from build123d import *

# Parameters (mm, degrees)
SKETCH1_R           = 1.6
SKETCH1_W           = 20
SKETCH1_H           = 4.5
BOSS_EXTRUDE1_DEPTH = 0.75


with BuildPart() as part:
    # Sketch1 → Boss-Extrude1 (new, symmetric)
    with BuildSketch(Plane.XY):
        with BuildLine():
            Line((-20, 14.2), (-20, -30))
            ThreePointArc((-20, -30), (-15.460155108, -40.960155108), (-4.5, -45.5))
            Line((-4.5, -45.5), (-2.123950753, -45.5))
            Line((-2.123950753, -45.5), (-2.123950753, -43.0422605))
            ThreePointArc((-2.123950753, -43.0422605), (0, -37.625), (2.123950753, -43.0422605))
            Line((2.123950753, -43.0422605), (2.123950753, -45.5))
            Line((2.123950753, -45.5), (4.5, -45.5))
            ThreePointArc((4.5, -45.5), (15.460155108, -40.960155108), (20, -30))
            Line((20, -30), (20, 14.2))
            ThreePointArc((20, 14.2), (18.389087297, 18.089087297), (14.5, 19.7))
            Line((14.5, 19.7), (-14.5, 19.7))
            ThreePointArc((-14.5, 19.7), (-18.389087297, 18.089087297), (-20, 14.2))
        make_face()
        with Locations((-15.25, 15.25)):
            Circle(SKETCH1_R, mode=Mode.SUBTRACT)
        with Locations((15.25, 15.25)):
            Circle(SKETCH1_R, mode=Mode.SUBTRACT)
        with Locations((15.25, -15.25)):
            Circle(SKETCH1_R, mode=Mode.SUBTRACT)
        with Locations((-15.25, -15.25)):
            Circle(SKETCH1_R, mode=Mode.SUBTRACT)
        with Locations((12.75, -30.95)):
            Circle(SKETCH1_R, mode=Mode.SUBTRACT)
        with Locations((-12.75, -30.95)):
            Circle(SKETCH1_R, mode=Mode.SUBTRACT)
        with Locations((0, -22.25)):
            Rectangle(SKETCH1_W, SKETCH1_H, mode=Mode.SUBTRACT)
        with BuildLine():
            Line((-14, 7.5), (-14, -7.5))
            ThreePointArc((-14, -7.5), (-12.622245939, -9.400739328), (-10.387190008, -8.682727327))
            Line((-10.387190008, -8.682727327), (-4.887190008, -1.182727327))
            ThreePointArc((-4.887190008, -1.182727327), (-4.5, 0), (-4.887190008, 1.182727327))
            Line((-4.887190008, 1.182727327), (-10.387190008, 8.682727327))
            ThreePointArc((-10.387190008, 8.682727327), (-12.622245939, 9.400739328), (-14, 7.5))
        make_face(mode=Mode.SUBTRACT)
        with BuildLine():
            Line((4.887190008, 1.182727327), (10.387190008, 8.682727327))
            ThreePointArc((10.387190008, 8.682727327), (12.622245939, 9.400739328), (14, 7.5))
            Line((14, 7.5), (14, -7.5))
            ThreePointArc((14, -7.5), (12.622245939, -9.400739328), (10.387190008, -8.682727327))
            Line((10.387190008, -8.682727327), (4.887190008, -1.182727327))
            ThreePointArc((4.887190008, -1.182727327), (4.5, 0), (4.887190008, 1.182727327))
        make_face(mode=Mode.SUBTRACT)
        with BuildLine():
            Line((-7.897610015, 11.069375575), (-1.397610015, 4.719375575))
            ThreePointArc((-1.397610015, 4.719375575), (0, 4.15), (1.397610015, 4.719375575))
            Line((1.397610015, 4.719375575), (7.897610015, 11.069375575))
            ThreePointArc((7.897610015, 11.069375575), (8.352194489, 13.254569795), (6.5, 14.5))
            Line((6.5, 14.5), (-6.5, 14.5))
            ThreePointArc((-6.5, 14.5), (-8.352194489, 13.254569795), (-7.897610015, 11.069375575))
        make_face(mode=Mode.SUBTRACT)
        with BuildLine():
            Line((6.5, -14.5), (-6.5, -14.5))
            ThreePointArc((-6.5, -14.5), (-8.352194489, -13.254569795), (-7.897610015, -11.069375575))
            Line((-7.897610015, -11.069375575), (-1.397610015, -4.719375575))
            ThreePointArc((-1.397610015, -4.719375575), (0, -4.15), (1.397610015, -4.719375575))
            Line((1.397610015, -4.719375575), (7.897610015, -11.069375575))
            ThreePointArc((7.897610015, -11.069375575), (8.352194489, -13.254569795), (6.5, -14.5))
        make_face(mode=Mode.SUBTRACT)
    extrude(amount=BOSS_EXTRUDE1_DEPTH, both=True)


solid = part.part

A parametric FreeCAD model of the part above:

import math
import FreeCAD as App
import Part
import Sketcher
Q = App.Units.Quantity

doc = App.newDocument("Part")
body = doc.addObject("PartDesign::Body", "Body")

# Sketch on XY plane
sketch1 = body.newObject("Sketcher::SketchObject", "Sketch")
sketch1.AttachmentSupport = (doc.getObject("XY_Plane"), [""])
sketch1.MapMode = "FlatFace"
sketch1.addGeometry([
    Part.LineSegment(App.Vector(-20, 14.2, 0), App.Vector(-20, -30, 0)),  # 0
    Part.ArcOfCircle(Part.Circle(App.Vector(-4.5, -30, 0), App.Vector(0, 0, 1), 15.5), math.radians(-180), math.radians(-90)),  # 1
    Part.LineSegment(App.Vector(-4.5, -45.5, 0), App.Vector(-2.123951, -45.5, 0)),  # 2
    Part.LineSegment(App.Vector(-2.123951, -45.5, 0), App.Vector(-2.123951, -43.04226, 0)),  # 3
    Part.ArcOfCircle(Part.Circle(App.Vector(0, -40.75, 0), App.Vector(0, 0, 1), 3.125), math.radians(-47.182589), math.radians(227.182589)),  # 4
    Part.LineSegment(App.Vector(2.123951, -43.04226, 0), App.Vector(2.123951, -45.5, 0)),  # 5
    Part.LineSegment(App.Vector(2.123951, -45.5, 0), App.Vector(4.5, -45.5, 0)),  # 6
    Part.ArcOfCircle(Part.Circle(App.Vector(4.5, -30, 0), App.Vector(0, 0, 1), 15.5), math.radians(-90), math.radians(0)),  # 7
    Part.LineSegment(App.Vector(20, -30, 0), App.Vector(20, 14.2, 0)),  # 8
    Part.ArcOfCircle(Part.Circle(App.Vector(14.5, 14.2, 0), App.Vector(0, 0, 1), 5.5), math.radians(0), math.radians(90)),  # 9
    Part.LineSegment(App.Vector(14.5, 19.7, 0), App.Vector(-14.5, 19.7, 0)),  # 10
    Part.ArcOfCircle(Part.Circle(App.Vector(-14.5, 14.2, 0), App.Vector(0, 0, 1), 5.5), math.radians(90), math.radians(180)),  # 11
    Part.Circle(App.Vector(-12.75, -30.95, 0), App.Vector(0, 0, 1), 1.6),  # 12
    Part.Circle(App.Vector(-15.25, -15.25, 0), App.Vector(0, 0, 1), 1.6),  # 13
    Part.LineSegment(App.Vector(10, -24.5, 0), App.Vector(-10, -24.5, 0)),  # 14
    Part.LineSegment(App.Vector(-10, -24.5, 0), App.Vector(-10, -20, 0)),  # 15
    Part.LineSegment(App.Vector(-10, -20, 0), App.Vector(10, -20, 0)),  # 16
    Part.LineSegment(App.Vector(10, -20, 0), App.Vector(10, -24.5, 0)),  # 17
    Part.Circle(App.Vector(12.75, -30.95, 0), App.Vector(0, 0, 1), 1.6),  # 18
    Part.ArcOfCircle(Part.Circle(App.Vector(6.5, -12.5, 0), App.Vector(0, 0, 1), 2), math.radians(-90), math.radians(45.668792)),  # 19
    Part.LineSegment(App.Vector(6.5, -14.5, 0), App.Vector(-6.5, -14.5, 0)),  # 20
    Part.ArcOfCircle(Part.Circle(App.Vector(-6.5, -12.5, 0), App.Vector(0, 0, 1), 2), math.radians(134.331208), math.radians(270)),  # 21
    Part.LineSegment(App.Vector(-7.89761, -11.069376, 0), App.Vector(-1.39761, -4.719376, 0)),  # 22
    Part.ArcOfCircle(Part.Circle(App.Vector(0, -6.15, 0), App.Vector(0, 0, 1), 2), math.radians(45.668792), math.radians(134.331208)),  # 23
    Part.LineSegment(App.Vector(1.39761, -4.719376, 0), App.Vector(7.89761, -11.069376, 0)),  # 24
    Part.Circle(App.Vector(15.25, -15.25, 0), App.Vector(0, 0, 1), 1.6),  # 25
    Part.LineSegment(App.Vector(-14, -7.5, 0), App.Vector(-14, 7.5, 0)),  # 26
    Part.ArcOfCircle(Part.Circle(App.Vector(-12, 7.5, 0), App.Vector(0, 0, 1), 2), math.radians(36.253838), math.radians(180)),  # 27
    Part.LineSegment(App.Vector(-10.38719, 8.682727, 0), App.Vector(-4.88719, 1.182727, 0)),  # 28
    Part.ArcOfCircle(Part.Circle(App.Vector(-6.5, 0, 0), App.Vector(0, 0, 1), 2), math.radians(-36.253838), math.radians(36.253838)),  # 29
    Part.LineSegment(App.Vector(-4.88719, -1.182727, 0), App.Vector(-10.38719, -8.682727, 0)),  # 30
    Part.ArcOfCircle(Part.Circle(App.Vector(-12, -7.5, 0), App.Vector(0, 0, 1), 2), math.radians(180), math.radians(323.746162)),  # 31
    Part.Circle(App.Vector(-15.25, 15.25, 0), App.Vector(0, 0, 1), 1.6),  # 32
    Part.ArcOfCircle(Part.Circle(App.Vector(6.5, 0, 0), App.Vector(0, 0, 1), 2), math.radians(143.746162), math.radians(216.253838)),  # 33
    Part.LineSegment(App.Vector(4.88719, 1.182727, 0), App.Vector(10.38719, 8.682727, 0)),  # 34
    Part.ArcOfCircle(Part.Circle(App.Vector(12, 7.5, 0), App.Vector(0, 0, 1), 2), math.radians(0), math.radians(143.746162)),  # 35
    Part.LineSegment(App.Vector(14, 7.5, 0), App.Vector(14, -7.5, 0)),  # 36
    Part.ArcOfCircle(Part.Circle(App.Vector(12, -7.5, 0), App.Vector(0, 0, 1), 2), math.radians(-143.746162), math.radians(0)),  # 37
    Part.LineSegment(App.Vector(10.38719, -8.682727, 0), App.Vector(4.88719, -1.182727, 0)),  # 38
    Part.LineSegment(App.Vector(-1.39761, 4.719376, 0), App.Vector(-7.89761, 11.069376, 0)),  # 39
    Part.ArcOfCircle(Part.Circle(App.Vector(-6.5, 12.5, 0), App.Vector(0, 0, 1), 2), math.radians(90), math.radians(225.668792)),  # 40
    Part.LineSegment(App.Vector(-6.5, 14.5, 0), App.Vector(6.5, 14.5, 0)),  # 41
    Part.ArcOfCircle(Part.Circle(App.Vector(6.5, 12.5, 0), App.Vector(0, 0, 1), 2), math.radians(-45.668792), math.radians(90)),  # 42
    Part.LineSegment(App.Vector(7.89761, 11.069376, 0), App.Vector(1.39761, 4.719376, 0)),  # 43
    Part.ArcOfCircle(Part.Circle(App.Vector(0, 6.15, 0), App.Vector(0, 0, 1), 2), math.radians(-134.331208), math.radians(-45.668792)),  # 44
    Part.Circle(App.Vector(15.25, 15.25, 0), App.Vector(0, 0, 1), 1.6),  # 45
], False)
sketch1.addConstraint([
    Sketcher.Constraint("Tangent", 0, 2, 1, 1),
    Sketcher.Constraint("Tangent", 1, 2, 2, 1),
    Sketcher.Constraint("Coincident", 2, 2, 3, 1),
    Sketcher.Constraint("Coincident", 3, 2, 4, 2),
    Sketcher.Constraint("Coincident", 4, 1, 5, 1),
    Sketcher.Constraint("Coincident", 5, 2, 6, 1),
    Sketcher.Constraint("Tangent", 6, 2, 7, 1),
    Sketcher.Constraint("Tangent", 7, 2, 8, 1),
    Sketcher.Constraint("Tangent", 8, 2, 9, 1),
    Sketcher.Constraint("Tangent", 9, 2, 10, 1),
    Sketcher.Constraint("Tangent", 10, 2, 11, 1),
    Sketcher.Constraint("Tangent", 11, 2, 0, 1),
    Sketcher.Constraint("Coincident", 14, 2, 15, 1),
    Sketcher.Constraint("Coincident", 15, 2, 16, 1),
    Sketcher.Constraint("Coincident", 16, 2, 17, 1),
    Sketcher.Constraint("Coincident", 17, 2, 14, 1),
    Sketcher.Constraint("Tangent", 19, 1, 20, 1),
    Sketcher.Constraint("Tangent", 20, 2, 21, 2),
    Sketcher.Constraint("Tangent", 21, 1, 22, 1),
    Sketcher.Constraint("Tangent", 22, 2, 23, 2),
    Sketcher.Constraint("Tangent", 23, 1, 24, 1),
    Sketcher.Constraint("Tangent", 24, 2, 19, 2),
    Sketcher.Constraint("Tangent", 26, 2, 27, 2),
    Sketcher.Constraint("Tangent", 27, 1, 28, 1),
    Sketcher.Constraint("Tangent", 28, 2, 29, 2),
    Sketcher.Constraint("Tangent", 29, 1, 30, 1),
    Sketcher.Constraint("Tangent", 30, 2, 31, 2),
    Sketcher.Constraint("Tangent", 31, 1, 26, 1),
    Sketcher.Constraint("Tangent", 33, 1, 34, 1),
    Sketcher.Constraint("Tangent", 34, 2, 35, 2),
    Sketcher.Constraint("Tangent", 35, 1, 36, 1),
    Sketcher.Constraint("Tangent", 36, 2, 37, 2),
    Sketcher.Constraint("Tangent", 37, 1, 38, 1),
    Sketcher.Constraint("Tangent", 38, 2, 33, 2),
    Sketcher.Constraint("Tangent", 39, 2, 40, 2),
    Sketcher.Constraint("Tangent", 40, 1, 41, 1),
    Sketcher.Constraint("Tangent", 41, 2, 42, 2),
    Sketcher.Constraint("Tangent", 42, 1, 43, 1),
    Sketcher.Constraint("Tangent", 43, 2, 44, 2),
    Sketcher.Constraint("Tangent", 44, 1, 39, 1),
    Sketcher.Constraint("Vertical", 0),
    Sketcher.Constraint("Horizontal", 2),
    Sketcher.Constraint("Vertical", 3),
    Sketcher.Constraint("Vertical", 5),
    Sketcher.Constraint("Horizontal", 6),
    Sketcher.Constraint("Vertical", 8),
    Sketcher.Constraint("Horizontal", 10),
    Sketcher.Constraint("Horizontal", 14),
    Sketcher.Constraint("Vertical", 15),
    Sketcher.Constraint("Horizontal", 16),
    Sketcher.Constraint("Vertical", 17),
    Sketcher.Constraint("Horizontal", 20),
    Sketcher.Constraint("Vertical", 26),
    Sketcher.Constraint("Vertical", 36),
    Sketcher.Constraint("Horizontal", 41),
    Sketcher.Constraint("Equal", 1, 7),
    Sketcher.Constraint("Equal", 9, 11),
    Sketcher.Constraint("Equal", 12, 13),
    Sketcher.Constraint("Equal", 13, 18),
    Sketcher.Constraint("Equal", 19, 21),
    Sketcher.Constraint("Equal", 21, 23),
    Sketcher.Constraint("Equal", 18, 25),
    Sketcher.Constraint("Equal", 23, 27),
    Sketcher.Constraint("Equal", 27, 29),
    Sketcher.Constraint("Equal", 29, 31),
    Sketcher.Constraint("Equal", 25, 32),
    Sketcher.Constraint("Equal", 31, 33),
    Sketcher.Constraint("Equal", 33, 35),
    Sketcher.Constraint("Equal", 35, 37),
    Sketcher.Constraint("Equal", 37, 40),
    Sketcher.Constraint("Equal", 40, 42),
    Sketcher.Constraint("Equal", 42, 44),
    Sketcher.Constraint("Equal", 32, 45),
    Sketcher.Constraint("Symmetric", 25, 3, 32, 3, -1, 1),
    Sketcher.Constraint("Symmetric", 29, 3, 33, 3, -1, 1),
    Sketcher.Constraint("Symmetric", 31, 3, 35, 3, -1, 1),
    Sketcher.Constraint("Symmetric", 19, 3, 40, 3, -1, 1),
    Sketcher.Constraint("Symmetric", 23, 3, 44, 3, -1, 1),
    Sketcher.Constraint("Symmetric", 13, 3, 45, 3, -1, 1),
    Sketcher.Constraint("Symmetric", 1, 3, 7, 3, -2),
    Sketcher.Constraint("Symmetric", 12, 3, 18, 3, -2),
    Sketcher.Constraint("Symmetric", 13, 3, 25, 3, -2),
    Sketcher.Constraint("Symmetric", 3, 2, 4, 1, -2),
    Sketcher.Constraint("Symmetric", 22, 2, 23, 1, -2),
    Sketcher.Constraint("Symmetric", 28, 2, 33, 1, -2),
    Sketcher.Constraint("Parallel", 28, 38),
    Sketcher.Constraint("Parallel", 22, 43),
    Sketcher.Constraint("Vertical", 21, 3, 29, 3),
    Sketcher.Constraint("Radius", 19, Q("2 mm")),
    Sketcher.Constraint("Diameter", 12, Q("3.2 mm")),
    Sketcher.Constraint("Radius", 1, Q("15.5 mm")),
    Sketcher.Constraint("Radius", 9, Q("5.5 mm")),
    Sketcher.Constraint("DistanceX", 10, 2, 10, 1, Q("29 mm")),
    Sketcher.Constraint("DistanceX", 14, 2, 14, 1, Q("20 mm")),
    Sketcher.Constraint("DistanceX", 20, 2, 20, 1, Q("13 mm")),
    Sketcher.Constraint("DistanceY", 26, 1, 26, 2, Q("15 mm")),
    Sketcher.Constraint("DistanceY", 0, 2, 0, 1, Q("44.2 mm")),
    Sketcher.Constraint("DistanceY", 15, 1, 15, 2, Q("4.5 mm")),
    Sketcher.Constraint("DistanceY", 1, 3, -1, 1, Q("30 mm")),
    Sketcher.Constraint("DistanceX", 27, 3, -1, 1, Q("12 mm")),
    Sketcher.Constraint("DistanceX", 14, 2, -1, 1, Q("10 mm")),
    Sketcher.Constraint("DistanceY", 15, 2, -1, 1, Q("20 mm")),
    Sketcher.Constraint("Radius", 4, Q("3.125 mm")),
    Sketcher.Constraint("DistanceY", 19, 3, -1, 1, Q("12.5 mm")),
    Sketcher.Constraint("DistanceY", 4, 3, -1, 1, Q("40.75 mm")),
    Sketcher.Constraint("DistanceX", 12, 3, -1, 1, Q("12.75 mm")),
    Sketcher.Constraint("DistanceY", 12, 3, -1, 1, Q("30.95 mm")),
    Sketcher.Constraint("DistanceX", 13, 3, -1, 1, Q("15.25 mm")),
    Sketcher.Constraint("DistanceY", 13, 3, -1, 1, Q("15.25 mm")),
    Sketcher.Constraint("DistanceY", 23, 3, -1, 1, Q("6.15 mm")),
    Sketcher.Constraint("DistanceX", 2, 1, 2, 2, Q("2.376049 mm")),
])
pad1 = body.newObject("PartDesign::Pad", "Pad")
pad1.Profile = sketch1
pad1.Length = 1.5
pad1.Midplane = True

doc.recompute()
